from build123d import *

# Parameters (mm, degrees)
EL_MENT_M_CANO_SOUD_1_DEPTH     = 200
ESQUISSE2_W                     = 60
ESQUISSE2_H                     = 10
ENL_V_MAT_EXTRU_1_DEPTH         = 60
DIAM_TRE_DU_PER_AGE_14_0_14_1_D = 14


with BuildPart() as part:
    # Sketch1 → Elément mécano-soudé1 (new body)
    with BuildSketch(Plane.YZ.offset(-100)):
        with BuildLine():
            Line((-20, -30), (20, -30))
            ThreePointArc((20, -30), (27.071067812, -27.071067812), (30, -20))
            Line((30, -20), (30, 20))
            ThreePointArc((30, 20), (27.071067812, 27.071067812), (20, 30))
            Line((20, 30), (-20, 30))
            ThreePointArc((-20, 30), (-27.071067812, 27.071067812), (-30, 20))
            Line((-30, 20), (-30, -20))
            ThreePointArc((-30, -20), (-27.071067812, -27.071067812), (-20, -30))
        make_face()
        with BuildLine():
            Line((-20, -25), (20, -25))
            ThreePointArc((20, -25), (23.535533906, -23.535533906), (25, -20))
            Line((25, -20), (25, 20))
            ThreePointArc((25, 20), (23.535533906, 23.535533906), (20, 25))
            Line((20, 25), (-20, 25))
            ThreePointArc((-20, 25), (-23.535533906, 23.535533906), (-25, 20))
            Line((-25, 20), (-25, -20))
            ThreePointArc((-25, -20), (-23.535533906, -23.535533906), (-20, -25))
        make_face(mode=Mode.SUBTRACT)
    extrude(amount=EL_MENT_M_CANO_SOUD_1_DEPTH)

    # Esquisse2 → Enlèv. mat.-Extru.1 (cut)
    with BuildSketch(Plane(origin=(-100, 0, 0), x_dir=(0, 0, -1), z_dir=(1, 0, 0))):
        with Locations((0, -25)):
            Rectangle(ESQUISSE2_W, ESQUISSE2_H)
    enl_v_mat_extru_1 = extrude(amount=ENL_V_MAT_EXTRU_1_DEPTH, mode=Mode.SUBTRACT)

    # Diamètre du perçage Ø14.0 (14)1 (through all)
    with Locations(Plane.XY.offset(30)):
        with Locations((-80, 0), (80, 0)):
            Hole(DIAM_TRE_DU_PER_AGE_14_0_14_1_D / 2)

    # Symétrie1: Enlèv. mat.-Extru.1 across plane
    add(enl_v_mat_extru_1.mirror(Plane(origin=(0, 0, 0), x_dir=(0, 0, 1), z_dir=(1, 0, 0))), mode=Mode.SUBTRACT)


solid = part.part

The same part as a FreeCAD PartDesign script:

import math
import FreeCAD as App
import Part
import Sketcher
Q = App.Units.Quantity

doc = App.newDocument("Part")
body = doc.addObject("PartDesign::Body", "Body")

# Sketch on YZ plane
sketch1 = doc.addObject("Sketcher::SketchObject", "Sketch")
body.addObject(sketch1)
sketch1.AttachmentSupport = (doc.YZ_Plane, [""])
sketch1.MapMode = "FlatFace"
sketch1.AttachmentOffset = App.Placement(App.Vector(0, 0, -100), App.Rotation())
sketch1.addGeometry(Part.LineSegment(App.Vector(-20, -30, 0), App.Vector(20, -30, 0)), False)
sketch1.addGeometry(Part.ArcOfCircle(Part.Circle(App.Vector(20, -20, 0), App.Vector(0, 0, 1), 10), math.radians(-90), math.radians(0)), False)
sketch1.addGeometry(Part.LineSegment(App.Vector(30, -20, 0), App.Vector(30, 20, 0)), False)
sketch1.addGeometry(Part.ArcOfCircle(Part.Circle(App.Vector(20, 20, 0), App.Vector(0, 0, 1), 10), math.radians(0), math.radians(90)), False)
sketch1.addGeometry(Part.LineSegment(App.Vector(20, 30, 0), App.Vector(-20, 30, 0)), False)
sketch1.addGeometry(Part.ArcOfCircle(Part.Circle(App.Vector(-20, 20, 0), App.Vector(0, 0, 1), 10), math.radians(90), math.radians(180)), False)
sketch1.addGeometry(Part.LineSegment(App.Vector(-30, 20, 0), App.Vector(-30, -20, 0)), False)
sketch1.addGeometry(Part.ArcOfCircle(Part.Circle(App.Vector(-20, -20, 0), App.Vector(0, 0, 1), 10), math.radians(180), math.radians(270)), False)
sketch1.addGeometry(Part.LineSegment(App.Vector(20, -25, 0), App.Vector(-20, -25, 0)), False)
sketch1.addGeometry(Part.ArcOfCircle(Part.Circle(App.Vector(-20, -20, 0), App.Vector(0, 0, 1), 5), math.radians(180), math.radians(270)), False)
sketch1.addGeometry(Part.LineSegment(App.Vector(-25, -20, 0), App.Vector(-25, 20, 0)), False)
sketch1.addGeometry(Part.ArcOfCircle(Part.Circle(App.Vector(-20, 20, 0), App.Vector(0, 0, 1), 5), math.radians(90), math.radians(180)), False)
sketch1.addGeometry(Part.LineSegment(App.Vector(-20, 25, 0), App.Vector(20, 25, 0)), False)
sketch1.addGeometry(Part.ArcOfCircle(Part.Circle(App.Vector(20, 20, 0), App.Vector(0, 0, 1), 5), math.radians(0), math.radians(90)), False)
sketch1.addGeometry(Part.LineSegment(App.Vector(25, 20, 0), App.Vector(25, -20, 0)), False)
sketch1.addGeometry(Part.ArcOfCircle(Part.Circle(App.Vector(20, -20, 0), App.Vector(0, 0, 1), 5), math.radians(-90), math.radians(0)), False)
sketch1.addConstraint(Sketcher.Constraint("Tangent", 0, 2, 1, 1))
sketch1.addConstraint(Sketcher.Constraint("Tangent", 1, 2, 2, 1))
sketch1.addConstraint(Sketcher.Constraint("Tangent", 2, 2, 3, 1))
sketch1.addConstraint(Sketcher.Constraint("Tangent", 3, 2, 4, 1))
sketch1.addConstraint(Sketcher.Constraint("Tangent", 4, 2, 5, 1))
sketch1.addConstraint(Sketcher.Constraint("Tangent", 5, 2, 6, 1))
sketch1.addConstraint(Sketcher.Constraint("Tangent", 6, 2, 7, 1))
sketch1.addConstraint(Sketcher.Constraint("Tangent", 7, 2, 0, 1))
sketch1.addConstraint(Sketcher.Constraint("Tangent", 8, 2, 9, 2))
sketch1.addConstraint(Sketcher.Constraint("Tangent", 9, 1, 10, 1))
sketch1.addConstraint(Sketcher.Constraint("Tangent", 10, 2, 11, 2))
sketch1.addConstraint(Sketcher.Constraint("Tangent", 11, 1, 12, 1))
sketch1.addConstraint(Sketcher.Constraint("Tangent", 12, 2, 13, 2))
sketch1.addConstraint(Sketcher.Constraint("Tangent", 13, 1, 14, 1))
sketch1.addConstraint(Sketcher.Constraint("Tangent", 14, 2, 15, 2))
sketch1.addConstraint(Sketcher.Constraint("Tangent", 15, 1, 8, 1))
sketch1.addConstraint(Sketcher.Constraint("Horizontal", 0))
sketch1.addConstraint(Sketcher.Constraint("Vertical", 2))
sketch1.addConstraint(Sketcher.Constraint("Horizontal", 4))
sketch1.addConstraint(Sketcher.Constraint("Vertical", 6))
sketch1.addConstraint(Sketcher.Constraint("Horizontal", 8))
sketch1.addConstraint(Sketcher.Constraint("Vertical", 10))
sketch1.addConstraint(Sketcher.Constraint("Horizontal", 12))
sketch1.addConstraint(Sketcher.Constraint("Vertical", 14))
sketch1.addConstraint(Sketcher.Constraint("Coincident", 9, 3, 7, 3))
sketch1.addConstraint(Sketcher.Constraint("Coincident", 11, 3, 5, 3))
sketch1.addConstraint(Sketcher.Constraint("Coincident", 13, 3, 3, 3))
sketch1.addConstraint(Sketcher.Constraint("Equal", 1, 3))
sketch1.addConstraint(Sketcher.Constraint("Equal", 3, 5))
sketch1.addConstraint(Sketcher.Constraint("Equal", 5, 7))
sketch1.addConstraint(Sketcher.Constraint("Equal", 13, 15))
sketch1.addConstraint(Sketcher.Constraint("Symmetric", 1, 3, 5, 3, -1, 1))
sketch1.addConstraint(Sketcher.Constraint("Equal", 12, 2))
sketch1.addConstraint(Sketcher.Constraint("Radius", 1, Q("10 mm")))
sketch1.addConstraint(Sketcher.Constraint("Radius", 9, Q("5 mm")))
sketch1.addConstraint(Sketcher.Constraint("DistanceX", 0, 1, 0, 2, Q("40 mm")))
pad1 = doc.addObject("PartDesign::Pad", "Pad")
body.addObject(pad1)
pad1.Profile = sketch1
pad1.Length = 200

# Sketch on YZ plane
sketch2 = doc.addObject("Sketcher::SketchObject", "Sketch001")
body.addObject(sketch2)
sketch2.AttachmentSupport = (doc.YZ_Plane, [""])
sketch2.MapMode = "FlatFace"
sketch2.AttachmentOffset = App.Placement(App.Vector(0, 0, -100), App.Rotation())
sketch2.addGeometry(Part.LineSegment(App.Vector(-20, 30, 0), App.Vector(-30, 30, 0)), False)
sketch2.addGeometry(Part.LineSegment(App.Vector(-30, 30, 0), App.Vector(-30, -30, 0)), False)
sketch2.addGeometry(Part.LineSegment(App.Vector(-30, -30, 0), App.Vector(-20, -30, 0)), False)
sketch2.addGeometry(Part.LineSegment(App.Vector(-20, -30, 0), App.Vector(-20, 30, 0)), False)
sketch2.addConstraint(Sketcher.Constraint("Coincident", 0, 2, 1, 1))
sketch2.addConstraint(Sketcher.Constraint("Coincident", 1, 2, 2, 1))
sketch2.addConstraint(Sketcher.Constraint("Coincident", 2, 2, 3, 1))
sketch2.addConstraint(Sketcher.Constraint("Coincident", 3, 2, 0, 1))
sketch2.addConstraint(Sketcher.Constraint("Horizontal", 0))
sketch2.addConstraint(Sketcher.Constraint("Vertical", 1))
sketch2.addConstraint(Sketcher.Constraint("Horizontal", 2))
sketch2.addConstraint(Sketcher.Constraint("Vertical", 3))
sketch2.addConstraint(Sketcher.Constraint("DistanceX", 0, 2, 0, 1, Q("10 mm")))
sketch2.addConstraint(Sketcher.Constraint("DistanceY", 1, 2, 1, 1, Q("60 mm")))
sketch2.addConstraint(Sketcher.Constraint("DistanceX", 0, 2, -1, 1, Q("30 mm")))
sketch2.addConstraint(Sketcher.Constraint("DistanceY", -1, 1, 0, 2, Q("30 mm")))
pocket1 = doc.addObject("PartDesign::Pocket", "Pocket")
body.addObject(pocket1)
pocket1.Profile = sketch2
pocket1.Length = 60
pocket1.Reversed = True

# Sketch on XY plane
sketch3 = doc.addObject("Sketcher::SketchObject", "Sketch002")
body.addObject(sketch3)
sketch3.AttachmentSupport = (doc.XY_Plane, [""])
sketch3.MapMode = "FlatFace"
sketch3.AttachmentOffset = App.Placement(App.Vector(0, 0, 30), App.Rotation())
sketch3.addGeometry(Part.Circle(App.Vector(-80, 0, 0), App.Vector(0, 0, 1), 7), False)
sketch3.addGeometry(Part.Circle(App.Vector(80, 0, 0), App.Vector(0, 0, 1), 7), False)
sketch3.addConstraint(Sketcher.Constraint("Equal", 0, 1))
sketch3.addConstraint(Sketcher.Constraint("Symmetric", 0, 3, 1, 3, -1, 1))
sketch3.addConstraint(Sketcher.Constraint("PointOnObject", 0, 3, -1))
sketch3.addConstraint(Sketcher.Constraint("Diameter", 0, Q("14 mm")))
sketch3.addConstraint(Sketcher.Constraint("DistanceX", 0, 3, -1, 1, Q("80 mm")))
doc.recompute()
hole = doc.addObject("PartDesign::Hole", "Hole")
body.addObject(hole)
hole.Profile = sketch3
hole.ThreadType = "None"
hole.Diameter = 14
hole.DepthType = "ThroughAll"
doc.recompute()

mirrored = doc.addObject("PartDesign::Mirrored", "Mirrored")
body.addObject(mirrored)
mirrored.Originals = [pocket1]
mirrored.MirrorPlane = (doc.YZ_Plane, [""])
body.Tip = mirrored

doc.recompute()
